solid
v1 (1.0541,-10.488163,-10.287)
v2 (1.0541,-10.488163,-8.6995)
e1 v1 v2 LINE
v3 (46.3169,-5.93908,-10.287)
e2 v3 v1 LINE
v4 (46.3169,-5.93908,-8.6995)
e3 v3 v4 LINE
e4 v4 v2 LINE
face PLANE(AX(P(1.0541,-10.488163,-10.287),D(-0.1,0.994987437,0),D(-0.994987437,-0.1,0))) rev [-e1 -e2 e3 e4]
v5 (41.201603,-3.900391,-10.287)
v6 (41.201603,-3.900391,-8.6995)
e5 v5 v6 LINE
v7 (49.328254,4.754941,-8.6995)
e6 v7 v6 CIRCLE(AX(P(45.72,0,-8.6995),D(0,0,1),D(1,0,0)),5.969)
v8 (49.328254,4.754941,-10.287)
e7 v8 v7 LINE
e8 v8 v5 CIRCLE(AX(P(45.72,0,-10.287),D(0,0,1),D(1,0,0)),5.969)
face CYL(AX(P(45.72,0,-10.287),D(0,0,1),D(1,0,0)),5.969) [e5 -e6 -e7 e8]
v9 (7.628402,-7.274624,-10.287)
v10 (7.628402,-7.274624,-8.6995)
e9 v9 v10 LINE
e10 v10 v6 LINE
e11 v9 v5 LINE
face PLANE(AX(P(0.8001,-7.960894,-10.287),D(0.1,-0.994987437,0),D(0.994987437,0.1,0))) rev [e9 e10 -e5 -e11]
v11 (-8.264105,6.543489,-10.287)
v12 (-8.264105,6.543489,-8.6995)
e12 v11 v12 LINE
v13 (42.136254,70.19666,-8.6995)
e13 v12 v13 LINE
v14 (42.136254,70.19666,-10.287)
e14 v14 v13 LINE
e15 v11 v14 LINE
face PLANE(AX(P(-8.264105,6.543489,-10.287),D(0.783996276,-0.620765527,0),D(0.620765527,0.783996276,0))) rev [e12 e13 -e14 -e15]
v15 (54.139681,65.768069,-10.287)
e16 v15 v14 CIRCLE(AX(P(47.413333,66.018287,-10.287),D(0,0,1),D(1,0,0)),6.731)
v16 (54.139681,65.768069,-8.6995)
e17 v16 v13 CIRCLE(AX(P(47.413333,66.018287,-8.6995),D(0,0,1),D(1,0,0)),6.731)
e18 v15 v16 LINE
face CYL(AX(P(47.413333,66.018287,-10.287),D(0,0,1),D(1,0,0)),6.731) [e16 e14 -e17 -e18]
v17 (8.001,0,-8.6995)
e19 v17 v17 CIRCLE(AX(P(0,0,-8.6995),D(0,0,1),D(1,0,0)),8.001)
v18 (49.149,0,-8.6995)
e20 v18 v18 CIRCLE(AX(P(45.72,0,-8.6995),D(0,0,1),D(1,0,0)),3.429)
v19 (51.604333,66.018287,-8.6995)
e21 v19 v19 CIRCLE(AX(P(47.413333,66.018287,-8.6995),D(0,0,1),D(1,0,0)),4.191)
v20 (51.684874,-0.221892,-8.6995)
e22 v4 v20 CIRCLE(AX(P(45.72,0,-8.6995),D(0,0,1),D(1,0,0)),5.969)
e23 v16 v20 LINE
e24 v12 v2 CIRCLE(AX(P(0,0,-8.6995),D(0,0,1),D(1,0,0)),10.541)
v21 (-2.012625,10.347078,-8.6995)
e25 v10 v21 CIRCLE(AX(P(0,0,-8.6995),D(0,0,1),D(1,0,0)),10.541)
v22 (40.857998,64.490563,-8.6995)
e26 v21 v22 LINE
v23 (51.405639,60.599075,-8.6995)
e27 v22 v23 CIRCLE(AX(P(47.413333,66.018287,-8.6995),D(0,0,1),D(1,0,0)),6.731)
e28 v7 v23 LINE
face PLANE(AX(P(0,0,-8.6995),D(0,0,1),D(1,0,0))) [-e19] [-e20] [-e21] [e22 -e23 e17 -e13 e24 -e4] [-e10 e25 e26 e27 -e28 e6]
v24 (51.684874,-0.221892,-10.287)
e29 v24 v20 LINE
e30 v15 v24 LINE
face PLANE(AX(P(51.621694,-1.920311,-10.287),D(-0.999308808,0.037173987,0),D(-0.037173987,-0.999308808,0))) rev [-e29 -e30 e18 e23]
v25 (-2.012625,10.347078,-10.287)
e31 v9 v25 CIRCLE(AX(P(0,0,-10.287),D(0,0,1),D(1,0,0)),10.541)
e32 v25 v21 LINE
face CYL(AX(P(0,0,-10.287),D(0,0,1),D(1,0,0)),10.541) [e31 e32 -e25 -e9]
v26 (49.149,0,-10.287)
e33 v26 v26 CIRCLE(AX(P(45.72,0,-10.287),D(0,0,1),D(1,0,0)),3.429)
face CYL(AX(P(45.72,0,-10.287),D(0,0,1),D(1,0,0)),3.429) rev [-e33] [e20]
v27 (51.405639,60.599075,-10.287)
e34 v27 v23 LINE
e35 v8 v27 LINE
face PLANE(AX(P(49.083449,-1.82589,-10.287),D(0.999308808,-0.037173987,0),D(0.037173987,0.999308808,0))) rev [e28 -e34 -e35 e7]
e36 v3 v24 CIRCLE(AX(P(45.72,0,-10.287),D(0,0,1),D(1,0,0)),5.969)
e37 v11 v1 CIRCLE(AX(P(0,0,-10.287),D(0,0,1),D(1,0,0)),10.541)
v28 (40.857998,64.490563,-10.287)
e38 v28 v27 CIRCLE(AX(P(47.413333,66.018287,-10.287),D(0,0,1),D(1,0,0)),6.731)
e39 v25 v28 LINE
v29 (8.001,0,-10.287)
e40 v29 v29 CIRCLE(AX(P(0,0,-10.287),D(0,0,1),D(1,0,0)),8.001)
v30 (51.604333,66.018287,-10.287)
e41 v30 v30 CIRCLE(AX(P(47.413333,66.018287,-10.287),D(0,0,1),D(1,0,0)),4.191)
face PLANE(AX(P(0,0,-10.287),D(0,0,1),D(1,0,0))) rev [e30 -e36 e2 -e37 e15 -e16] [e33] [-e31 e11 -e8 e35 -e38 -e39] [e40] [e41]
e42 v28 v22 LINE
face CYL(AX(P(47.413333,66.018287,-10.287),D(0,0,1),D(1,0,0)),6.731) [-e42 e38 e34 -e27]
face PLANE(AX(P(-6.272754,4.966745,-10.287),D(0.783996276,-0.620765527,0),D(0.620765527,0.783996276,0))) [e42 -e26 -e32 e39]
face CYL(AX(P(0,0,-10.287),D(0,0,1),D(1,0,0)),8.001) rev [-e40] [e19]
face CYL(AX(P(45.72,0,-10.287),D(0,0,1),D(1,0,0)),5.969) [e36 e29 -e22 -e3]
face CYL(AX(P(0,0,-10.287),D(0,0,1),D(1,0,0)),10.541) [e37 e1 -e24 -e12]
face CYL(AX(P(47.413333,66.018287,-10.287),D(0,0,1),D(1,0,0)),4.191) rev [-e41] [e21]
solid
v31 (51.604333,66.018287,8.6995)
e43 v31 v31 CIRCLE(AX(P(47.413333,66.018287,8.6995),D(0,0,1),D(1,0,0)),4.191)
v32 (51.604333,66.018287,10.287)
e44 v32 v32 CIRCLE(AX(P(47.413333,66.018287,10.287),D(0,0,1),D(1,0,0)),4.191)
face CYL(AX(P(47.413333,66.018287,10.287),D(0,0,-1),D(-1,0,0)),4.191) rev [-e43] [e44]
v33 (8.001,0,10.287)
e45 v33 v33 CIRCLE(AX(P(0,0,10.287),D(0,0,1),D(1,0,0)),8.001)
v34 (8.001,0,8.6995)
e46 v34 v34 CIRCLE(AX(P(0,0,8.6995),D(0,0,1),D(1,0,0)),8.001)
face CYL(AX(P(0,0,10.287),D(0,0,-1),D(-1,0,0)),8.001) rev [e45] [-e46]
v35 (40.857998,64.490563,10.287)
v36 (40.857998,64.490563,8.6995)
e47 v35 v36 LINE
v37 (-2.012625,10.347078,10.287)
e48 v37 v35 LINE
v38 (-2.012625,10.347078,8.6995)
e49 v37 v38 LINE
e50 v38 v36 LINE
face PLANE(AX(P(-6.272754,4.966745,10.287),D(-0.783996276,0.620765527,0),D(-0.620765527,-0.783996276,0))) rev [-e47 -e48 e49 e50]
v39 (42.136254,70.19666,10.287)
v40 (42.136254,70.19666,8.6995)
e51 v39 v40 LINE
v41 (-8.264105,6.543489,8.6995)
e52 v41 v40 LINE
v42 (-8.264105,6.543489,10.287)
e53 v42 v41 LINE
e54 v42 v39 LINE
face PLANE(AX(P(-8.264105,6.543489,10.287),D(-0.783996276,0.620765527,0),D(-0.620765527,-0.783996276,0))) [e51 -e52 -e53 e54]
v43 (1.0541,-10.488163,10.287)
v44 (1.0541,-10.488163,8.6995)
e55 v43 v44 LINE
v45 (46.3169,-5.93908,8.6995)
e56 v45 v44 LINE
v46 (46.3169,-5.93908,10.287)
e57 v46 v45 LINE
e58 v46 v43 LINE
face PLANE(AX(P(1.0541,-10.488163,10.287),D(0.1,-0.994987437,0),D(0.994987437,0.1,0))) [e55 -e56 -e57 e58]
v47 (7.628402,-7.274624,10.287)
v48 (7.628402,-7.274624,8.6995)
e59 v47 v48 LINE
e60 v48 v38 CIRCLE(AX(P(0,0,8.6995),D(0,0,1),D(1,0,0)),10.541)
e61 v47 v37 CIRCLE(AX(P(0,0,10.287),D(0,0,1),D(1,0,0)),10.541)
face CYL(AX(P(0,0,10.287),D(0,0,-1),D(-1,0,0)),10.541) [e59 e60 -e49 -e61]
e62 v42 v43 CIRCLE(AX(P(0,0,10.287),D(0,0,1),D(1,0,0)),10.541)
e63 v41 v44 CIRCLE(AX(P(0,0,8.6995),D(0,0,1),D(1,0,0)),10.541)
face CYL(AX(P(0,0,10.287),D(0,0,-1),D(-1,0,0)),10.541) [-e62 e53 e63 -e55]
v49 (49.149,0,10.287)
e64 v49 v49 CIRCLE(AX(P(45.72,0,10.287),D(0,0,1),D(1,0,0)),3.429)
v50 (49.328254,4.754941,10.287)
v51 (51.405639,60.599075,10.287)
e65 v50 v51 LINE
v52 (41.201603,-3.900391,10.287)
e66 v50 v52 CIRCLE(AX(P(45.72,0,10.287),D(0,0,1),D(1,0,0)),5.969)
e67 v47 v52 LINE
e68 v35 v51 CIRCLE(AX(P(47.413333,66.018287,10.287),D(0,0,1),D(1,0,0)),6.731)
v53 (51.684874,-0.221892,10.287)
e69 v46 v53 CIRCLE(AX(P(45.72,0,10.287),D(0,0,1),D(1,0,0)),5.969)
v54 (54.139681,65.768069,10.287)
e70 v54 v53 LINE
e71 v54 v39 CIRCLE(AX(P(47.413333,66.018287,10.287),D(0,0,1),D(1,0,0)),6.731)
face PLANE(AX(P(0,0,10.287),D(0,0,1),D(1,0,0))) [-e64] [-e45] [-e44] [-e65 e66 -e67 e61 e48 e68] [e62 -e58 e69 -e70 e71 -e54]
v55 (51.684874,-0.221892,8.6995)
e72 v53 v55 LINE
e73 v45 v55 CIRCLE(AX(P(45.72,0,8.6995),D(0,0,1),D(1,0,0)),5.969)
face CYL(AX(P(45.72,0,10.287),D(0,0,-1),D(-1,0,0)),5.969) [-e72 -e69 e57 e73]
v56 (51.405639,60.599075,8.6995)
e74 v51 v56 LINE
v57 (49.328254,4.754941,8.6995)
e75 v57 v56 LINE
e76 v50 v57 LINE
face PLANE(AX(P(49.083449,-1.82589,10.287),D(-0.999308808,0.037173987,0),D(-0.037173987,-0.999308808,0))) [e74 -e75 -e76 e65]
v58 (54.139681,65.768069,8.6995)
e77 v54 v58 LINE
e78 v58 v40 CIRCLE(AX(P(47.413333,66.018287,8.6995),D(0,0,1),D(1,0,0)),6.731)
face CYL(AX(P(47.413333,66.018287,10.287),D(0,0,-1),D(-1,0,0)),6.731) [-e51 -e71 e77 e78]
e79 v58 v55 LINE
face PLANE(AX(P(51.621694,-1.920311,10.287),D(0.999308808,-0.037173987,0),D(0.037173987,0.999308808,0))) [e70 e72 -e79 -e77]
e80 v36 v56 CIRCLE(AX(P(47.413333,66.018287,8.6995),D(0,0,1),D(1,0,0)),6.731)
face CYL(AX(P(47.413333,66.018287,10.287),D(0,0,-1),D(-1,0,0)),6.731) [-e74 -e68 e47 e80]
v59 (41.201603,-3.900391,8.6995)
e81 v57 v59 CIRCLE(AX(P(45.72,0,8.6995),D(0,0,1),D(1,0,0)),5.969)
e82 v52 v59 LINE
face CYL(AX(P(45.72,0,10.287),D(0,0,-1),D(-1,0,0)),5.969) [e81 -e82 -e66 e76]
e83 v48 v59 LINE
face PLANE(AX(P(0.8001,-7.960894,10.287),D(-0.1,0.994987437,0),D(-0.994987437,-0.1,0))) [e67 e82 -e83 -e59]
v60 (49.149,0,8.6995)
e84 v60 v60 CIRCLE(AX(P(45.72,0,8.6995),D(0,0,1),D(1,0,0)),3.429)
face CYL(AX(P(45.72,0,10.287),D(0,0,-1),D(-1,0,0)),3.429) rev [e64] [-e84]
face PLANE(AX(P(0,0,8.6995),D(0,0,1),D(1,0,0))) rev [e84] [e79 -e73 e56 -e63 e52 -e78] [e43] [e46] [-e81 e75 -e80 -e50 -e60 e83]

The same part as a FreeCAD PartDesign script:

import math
import FreeCAD as App
import Part
import Sketcher

V = App.Vector
Q = App.Units.Quantity

doc = App.newDocument("Part")
params = doc.addObject("Spreadsheet::Sheet", "Params")
for row, (alias, value) in enumerate([
    ("sketch1_diameter", "0.63 in"),
    ("sketch1_diameter2", "0.27 in"),
    ("sketch1_diameter3", "0.33 in"),
    ("sketch1_radius", "0.265 in"),
    ("sketch1_radius2", "0.415 in"),
    ("pad1_length", "0.0625 in"),
    ("sketch2_diameter", "0.63 in"),
    ("sketch2_diameter2", "0.27 in"),
    ("sketch2_diameter3", "0.33 in"),
    ("sketch2_radius", "0.265 in"),
    ("sketch2_radius2", "0.415 in"),
    ("pad2_length", "0.0625 in"),
], start=1):
    params.set(f"A{row}", alias)
    params.set(f"B{row}", "=" + value)
    params.setAlias(f"B{row}", alias)

body = doc.addObject("PartDesign::Body", "Body")

sketch1 = doc.addObject("Sketcher::SketchObject", "Sketch")
body.addObject(sketch1)
sketch1.AttachmentSupport = (doc.XY_Plane, [""])
sketch1.MapMode = "FlatFace"
sketch1.AttachmentOffset = App.Placement(V(0, 0, 0.3425 * 25.4), App.Rotation())
sketch1.addGeometry([
    Part.ArcOfCircle(Part.Circle(V(47.413333, 66.018287, 0), V(0, 0, 1), 6.731), math.radians(-2.130403), math.radians(141.627941)),
    Part.LineSegment(V(42.136254, 70.19666, 0), V(-8.264105, 6.543489, 0)),
    Part.ArcOfCircle(Part.Circle(V(0, 0, 0), V(0, 0, 1), 10.541), math.radians(141.627941), math.radians(275.73917)),
    Part.LineSegment(V(1.0541, -10.488163, 0), V(46.3169, -5.93908, 0)),
    Part.ArcOfCircle(Part.Circle(V(45.72, 0, 0), V(0, 0, 1), 5.969), math.radians(-84.26083), math.radians(-2.130403)),
    Part.LineSegment(V(51.684874, -0.221892, 0), V(54.139681, 65.768069, 0)),
    Part.Circle(V(0, 0, 0), V(0, 0, 1), 8.001),
    Part.Circle(V(45.72, 0, 0), V(0, 0, 1), 3.429),
    Part.ArcOfCircle(Part.Circle(V(0, 0, 0), V(0, 0, 1), 10.541), math.radians(-43.64013), math.radians(101.007241)),
    Part.LineSegment(V(-2.012625, 10.347078, 0), V(40.857998, 64.490563, 0)),
    Part.ArcOfCircle(Part.Circle(V(47.413333, 66.018287, 0), V(0, 0, 1), 6.731), math.radians(-166.881348), math.radians(-53.621114)),
    Part.LineSegment(V(51.405639, 60.599075, 0), V(49.328254, 4.754941, 0)),
    Part.ArcOfCircle(Part.Circle(V(45.72, 0, 0), V(0, 0, 1), 5.969), math.radians(52.807206), math.radians(220.801561)),
    Part.LineSegment(V(41.201603, -3.900391, 0), V(7.628402, -7.274624, 0)),
    Part.Circle(V(47.413333, 66.018287, 0), V(0, 0, 1), 4.191),
], False)
sketch1.addConstraint([
    Sketcher.Constraint("Coincident", 0, 2, 1, 1),
    Sketcher.Constraint("Coincident", 1, 2, 2, 1),
    Sketcher.Constraint("Coincident", 2, 2, 3, 1),
    Sketcher.Constraint("Coincident", 3, 2, 4, 1),
    Sketcher.Constraint("Coincident", 4, 2, 5, 1),
    Sketcher.Constraint("Coincident", 5, 2, 0, 1),
    Sketcher.Constraint("Coincident", 8, 2, 9, 1),
    Sketcher.Constraint("Coincident", 9, 2, 10, 1),
    Sketcher.Constraint("Coincident", 10, 2, 11, 1),
    Sketcher.Constraint("Coincident", 11, 2, 12, 1),
    Sketcher.Constraint("Coincident", 12, 2, 13, 1),
    Sketcher.Constraint("Coincident", 13, 2, 8, 1),
    Sketcher.Constraint("Coincident", 2, 3, -1, 1),
    Sketcher.Constraint("Coincident", 6, 3, -1, 1),
    Sketcher.Constraint("Coincident", 8, 3, -1, 1),
    Sketcher.Constraint("Coincident", 7, 3, 4, 3),
    Sketcher.Constraint("Coincident", 10, 3, 0, 3),
    Sketcher.Constraint("Coincident", 12, 3, 4, 3),
    Sketcher.Constraint("Coincident", 14, 3, 0, 3),
    Sketcher.Constraint("PointOnObject", 4, 3, -1),
    Sketcher.Constraint("Diameter", 6, Q("0.63 in")),
    Sketcher.Constraint("Diameter", 7, Q("0.27 in")),
    Sketcher.Constraint("Diameter", 14, Q("0.33 in")),
    Sketcher.Constraint("Radius", 0, Q("0.265 in")),
    Sketcher.Constraint("Radius", 2, Q("0.415 in")),
    Sketcher.Constraint("Radius", 4, Q("0.235 in")),
    Sketcher.Constraint("Radius", 8, Q("0.415 in")),
    Sketcher.Constraint("Radius", 10, Q("0.265 in")),
    Sketcher.Constraint("Radius", 12, Q("0.235 in")),
    Sketcher.Constraint("DistanceX", -1, 1, 4, 3, Q("1.8 in")),
    Sketcher.Constraint("DistanceX", 2, 2, 3, 2, Q("1.782 in")),
    Sketcher.Constraint("DistanceX", -1, 1, 2, 2, Q("0.0415 in")),
    Sketcher.Constraint("DistanceX", -1, 1, 9, 2, 40.857998),
    Sketcher.Constraint("DistanceY", 12, 2, 4, 2, 3.678499),
    Sketcher.Constraint("Distance", 11, 55.88276),
    Sketcher.Constraint("DistanceY", -1, 1, 0, 2, 70.19666),
    Sketcher.Constraint("DistanceY", -1, 1, 1, 2, 6.543489),
    Sketcher.Constraint("DistanceY", 4, 2, -1, 1, 0.221892),
    Sketcher.Constraint("DistanceX", -1, 1, 5, 2, 54.139681),
    Sketcher.Constraint("DistanceY", -1, 1, 5, 2, 65.768069),
    Sketcher.Constraint("DistanceX", -1, 1, 10, 2, 51.405639),
    Sketcher.Constraint("DistanceY", -1, 1, 11, 2, 4.754941),
    Sketcher.Constraint("DistanceX", 1, 2, 8, 2, 6.251479),
    Sketcher.Constraint("DistanceY", 2, 2, 13, 2, 3.213538),
])
sketch1.setExpression("Constraints[20]", "Params.sketch1_diameter")
sketch1.setExpression("Constraints[21]", "Params.sketch1_diameter2")
sketch1.setExpression("Constraints[22]", "Params.sketch1_diameter3")
sketch1.setExpression("Constraints[23]", "Params.sketch1_radius")
sketch1.setExpression("Constraints[24]", "Params.sketch1_radius2")
pad1 = doc.addObject("PartDesign::Pad", "Pad")
body.addObject(pad1)
pad1.Profile = sketch1
pad1.setExpression("Length", "Params.pad1_length")
body2 = doc.addObject("PartDesign::Body", "Body001")

sketch2 = doc.addObject("Sketcher::SketchObject", "Sketch001")
body2.addObject(sketch2)
sketch2.AttachmentSupport = (doc.getObject("XY_Plane001"), [""])
sketch2.MapMode = "FlatFace"
sketch2.AttachmentOffset = App.Placement(V(0, 0, -0.3425 * 25.4), App.Rotation())
sketch2.addGeometry([
    Part.ArcOfCircle(Part.Circle(V(47.413333, 66.018287, 0), V(0, 0, 1), 6.731), math.radians(-2.130403), math.radians(141.627941)),
    Part.LineSegment(V(42.136254, 70.19666, 0), V(-8.264105, 6.543489, 0)),
    Part.ArcOfCircle(Part.Circle(V(0, 0, 0), V(0, 0, 1), 10.541), math.radians(141.627941), math.radians(275.73917)),
    Part.LineSegment(V(1.0541, -10.488163, 0), V(46.3169, -5.93908, 0)),
    Part.ArcOfCircle(Part.Circle(V(45.72, 0, 0), V(0, 0, 1), 5.969), math.radians(-84.26083), math.radians(-2.130403)),
    Part.LineSegment(V(51.684874, -0.221892, 0), V(54.139681, 65.768069, 0)),
    Part.Circle(V(0, 0, 0), V(0, 0, 1), 8.001),
    Part.Circle(V(45.72, 0, 0), V(0, 0, 1), 3.429),
    Part.ArcOfCircle(Part.Circle(V(0, 0, 0), V(0, 0, 1), 10.541), math.radians(-43.64013), math.radians(101.007241)),
    Part.LineSegment(V(-2.012625, 10.347078, 0), V(40.857998, 64.490563, 0)),
    Part.ArcOfCircle(Part.Circle(V(47.413333, 66.018287, 0), V(0, 0, 1), 6.731), math.radians(-166.881348), math.radians(-53.621114)),
    Part.LineSegment(V(51.405639, 60.599075, 0), V(49.328254, 4.754941, 0)),
    Part.ArcOfCircle(Part.Circle(V(45.72, 0, 0), V(0, 0, 1), 5.969), math.radians(52.807206), math.radians(220.801561)),
    Part.LineSegment(V(41.201603, -3.900391, 0), V(7.628402, -7.274624, 0)),
    Part.Circle(V(47.413333, 66.018287, 0), V(0, 0, 1), 4.191),
], False)
sketch2.addConstraint([
    Sketcher.Constraint("Coincident", 0, 2, 1, 1),
    Sketcher.Constraint("Coincident", 1, 2, 2, 1),
    Sketcher.Constraint("Coincident", 2, 2, 3, 1),
    Sketcher.Constraint("Coincident", 3, 2, 4, 1),
    Sketcher.Constraint("Coincident", 4, 2, 5, 1),
    Sketcher.Constraint("Coincident", 5, 2, 0, 1),
    Sketcher.Constraint("Coincident", 8, 2, 9, 1),
    Sketcher.Constraint("Coincident", 9, 2, 10, 1),
    Sketcher.Constraint("Coincident", 10, 2, 11, 1),
    Sketcher.Constraint("Coincident", 11, 2, 12, 1),
    Sketcher.Constraint("Coincident", 12, 2, 13, 1),
    Sketcher.Constraint("Coincident", 13, 2, 8, 1),
    Sketcher.Constraint("Coincident", 2, 3, -1, 1),
    Sketcher.Constraint("Coincident", 6, 3, -1, 1),
    Sketcher.Constraint("Coincident", 8, 3, -1, 1),
    Sketcher.Constraint("Coincident", 7, 3, 4, 3),
    Sketcher.Constraint("Coincident", 10, 3, 0, 3),
    Sketcher.Constraint("Coincident", 12, 3, 4, 3),
    Sketcher.Constraint("Coincident", 14, 3, 0, 3),
    Sketcher.Constraint("PointOnObject", 4, 3, -1),
    Sketcher.Constraint("Diameter", 6, Q("0.63 in")),
    Sketcher.Constraint("Diameter", 7, Q("0.27 in")),
    Sketcher.Constraint("Diameter", 14, Q("0.33 in")),
    Sketcher.Constraint("Radius", 0, Q("0.265 in")),
    Sketcher.Constraint("Radius", 2, Q("0.415 in")),
    Sketcher.Constraint("Radius", 4, Q("0.235 in")),
    Sketcher.Constraint("Radius", 8, Q("0.415 in")),
    Sketcher.Constraint("Radius", 10, Q("0.265 in")),
    Sketcher.Constraint("Radius", 12, Q("0.235 in")),
    Sketcher.Constraint("DistanceX", -1, 1, 4, 3, Q("1.8 in")),
    Sketcher.Constraint("DistanceX", 2, 2, 3, 2, Q("1.782 in")),
    Sketcher.Constraint("DistanceX", -1, 1, 2, 2, Q("0.0415 in")),
    Sketcher.Constraint("DistanceX", -1, 1, 9, 2, 40.857998),
    Sketcher.Constraint("DistanceY", 12, 2, 4, 2, 3.678499),
    Sketcher.Constraint("Distance", 11, 55.88276),
    Sketcher.Constraint("DistanceY", -1, 1, 0, 2, 70.19666),
    Sketcher.Constraint("DistanceY", -1, 1, 1, 2, 6.543489),
    Sketcher.Constraint("DistanceY", 4, 2, -1, 1, 0.221892),
    Sketcher.Constraint("DistanceX", -1, 1, 5, 2, 54.139681),
    Sketcher.Constraint("DistanceY", -1, 1, 5, 2, 65.768069),
    Sketcher.Constraint("DistanceX", -1, 1, 10, 2, 51.405639),
    Sketcher.Constraint("DistanceY", -1, 1, 11, 2, 4.754941),
    Sketcher.Constraint("DistanceX", 1, 2, 8, 2, 6.251479),
    Sketcher.Constraint("DistanceY", 2, 2, 13, 2, 3.213538),
])
sketch2.setExpression("Constraints[20]", "Params.sketch2_diameter")
sketch2.setExpression("Constraints[21]", "Params.sketch2_diameter2")
sketch2.setExpression("Constraints[22]", "Params.sketch2_diameter3")
sketch2.setExpression("Constraints[23]", "Params.sketch2_radius")
sketch2.setExpression("Constraints[24]", "Params.sketch2_radius2")
pad2 = doc.addObject("PartDesign::Pad", "Pad001")
body2.addObject(pad2)
pad2.Profile = sketch2
pad2.setExpression("Length", "Params.pad2_length")
pad2.Reversed = True

doc.recompute()
